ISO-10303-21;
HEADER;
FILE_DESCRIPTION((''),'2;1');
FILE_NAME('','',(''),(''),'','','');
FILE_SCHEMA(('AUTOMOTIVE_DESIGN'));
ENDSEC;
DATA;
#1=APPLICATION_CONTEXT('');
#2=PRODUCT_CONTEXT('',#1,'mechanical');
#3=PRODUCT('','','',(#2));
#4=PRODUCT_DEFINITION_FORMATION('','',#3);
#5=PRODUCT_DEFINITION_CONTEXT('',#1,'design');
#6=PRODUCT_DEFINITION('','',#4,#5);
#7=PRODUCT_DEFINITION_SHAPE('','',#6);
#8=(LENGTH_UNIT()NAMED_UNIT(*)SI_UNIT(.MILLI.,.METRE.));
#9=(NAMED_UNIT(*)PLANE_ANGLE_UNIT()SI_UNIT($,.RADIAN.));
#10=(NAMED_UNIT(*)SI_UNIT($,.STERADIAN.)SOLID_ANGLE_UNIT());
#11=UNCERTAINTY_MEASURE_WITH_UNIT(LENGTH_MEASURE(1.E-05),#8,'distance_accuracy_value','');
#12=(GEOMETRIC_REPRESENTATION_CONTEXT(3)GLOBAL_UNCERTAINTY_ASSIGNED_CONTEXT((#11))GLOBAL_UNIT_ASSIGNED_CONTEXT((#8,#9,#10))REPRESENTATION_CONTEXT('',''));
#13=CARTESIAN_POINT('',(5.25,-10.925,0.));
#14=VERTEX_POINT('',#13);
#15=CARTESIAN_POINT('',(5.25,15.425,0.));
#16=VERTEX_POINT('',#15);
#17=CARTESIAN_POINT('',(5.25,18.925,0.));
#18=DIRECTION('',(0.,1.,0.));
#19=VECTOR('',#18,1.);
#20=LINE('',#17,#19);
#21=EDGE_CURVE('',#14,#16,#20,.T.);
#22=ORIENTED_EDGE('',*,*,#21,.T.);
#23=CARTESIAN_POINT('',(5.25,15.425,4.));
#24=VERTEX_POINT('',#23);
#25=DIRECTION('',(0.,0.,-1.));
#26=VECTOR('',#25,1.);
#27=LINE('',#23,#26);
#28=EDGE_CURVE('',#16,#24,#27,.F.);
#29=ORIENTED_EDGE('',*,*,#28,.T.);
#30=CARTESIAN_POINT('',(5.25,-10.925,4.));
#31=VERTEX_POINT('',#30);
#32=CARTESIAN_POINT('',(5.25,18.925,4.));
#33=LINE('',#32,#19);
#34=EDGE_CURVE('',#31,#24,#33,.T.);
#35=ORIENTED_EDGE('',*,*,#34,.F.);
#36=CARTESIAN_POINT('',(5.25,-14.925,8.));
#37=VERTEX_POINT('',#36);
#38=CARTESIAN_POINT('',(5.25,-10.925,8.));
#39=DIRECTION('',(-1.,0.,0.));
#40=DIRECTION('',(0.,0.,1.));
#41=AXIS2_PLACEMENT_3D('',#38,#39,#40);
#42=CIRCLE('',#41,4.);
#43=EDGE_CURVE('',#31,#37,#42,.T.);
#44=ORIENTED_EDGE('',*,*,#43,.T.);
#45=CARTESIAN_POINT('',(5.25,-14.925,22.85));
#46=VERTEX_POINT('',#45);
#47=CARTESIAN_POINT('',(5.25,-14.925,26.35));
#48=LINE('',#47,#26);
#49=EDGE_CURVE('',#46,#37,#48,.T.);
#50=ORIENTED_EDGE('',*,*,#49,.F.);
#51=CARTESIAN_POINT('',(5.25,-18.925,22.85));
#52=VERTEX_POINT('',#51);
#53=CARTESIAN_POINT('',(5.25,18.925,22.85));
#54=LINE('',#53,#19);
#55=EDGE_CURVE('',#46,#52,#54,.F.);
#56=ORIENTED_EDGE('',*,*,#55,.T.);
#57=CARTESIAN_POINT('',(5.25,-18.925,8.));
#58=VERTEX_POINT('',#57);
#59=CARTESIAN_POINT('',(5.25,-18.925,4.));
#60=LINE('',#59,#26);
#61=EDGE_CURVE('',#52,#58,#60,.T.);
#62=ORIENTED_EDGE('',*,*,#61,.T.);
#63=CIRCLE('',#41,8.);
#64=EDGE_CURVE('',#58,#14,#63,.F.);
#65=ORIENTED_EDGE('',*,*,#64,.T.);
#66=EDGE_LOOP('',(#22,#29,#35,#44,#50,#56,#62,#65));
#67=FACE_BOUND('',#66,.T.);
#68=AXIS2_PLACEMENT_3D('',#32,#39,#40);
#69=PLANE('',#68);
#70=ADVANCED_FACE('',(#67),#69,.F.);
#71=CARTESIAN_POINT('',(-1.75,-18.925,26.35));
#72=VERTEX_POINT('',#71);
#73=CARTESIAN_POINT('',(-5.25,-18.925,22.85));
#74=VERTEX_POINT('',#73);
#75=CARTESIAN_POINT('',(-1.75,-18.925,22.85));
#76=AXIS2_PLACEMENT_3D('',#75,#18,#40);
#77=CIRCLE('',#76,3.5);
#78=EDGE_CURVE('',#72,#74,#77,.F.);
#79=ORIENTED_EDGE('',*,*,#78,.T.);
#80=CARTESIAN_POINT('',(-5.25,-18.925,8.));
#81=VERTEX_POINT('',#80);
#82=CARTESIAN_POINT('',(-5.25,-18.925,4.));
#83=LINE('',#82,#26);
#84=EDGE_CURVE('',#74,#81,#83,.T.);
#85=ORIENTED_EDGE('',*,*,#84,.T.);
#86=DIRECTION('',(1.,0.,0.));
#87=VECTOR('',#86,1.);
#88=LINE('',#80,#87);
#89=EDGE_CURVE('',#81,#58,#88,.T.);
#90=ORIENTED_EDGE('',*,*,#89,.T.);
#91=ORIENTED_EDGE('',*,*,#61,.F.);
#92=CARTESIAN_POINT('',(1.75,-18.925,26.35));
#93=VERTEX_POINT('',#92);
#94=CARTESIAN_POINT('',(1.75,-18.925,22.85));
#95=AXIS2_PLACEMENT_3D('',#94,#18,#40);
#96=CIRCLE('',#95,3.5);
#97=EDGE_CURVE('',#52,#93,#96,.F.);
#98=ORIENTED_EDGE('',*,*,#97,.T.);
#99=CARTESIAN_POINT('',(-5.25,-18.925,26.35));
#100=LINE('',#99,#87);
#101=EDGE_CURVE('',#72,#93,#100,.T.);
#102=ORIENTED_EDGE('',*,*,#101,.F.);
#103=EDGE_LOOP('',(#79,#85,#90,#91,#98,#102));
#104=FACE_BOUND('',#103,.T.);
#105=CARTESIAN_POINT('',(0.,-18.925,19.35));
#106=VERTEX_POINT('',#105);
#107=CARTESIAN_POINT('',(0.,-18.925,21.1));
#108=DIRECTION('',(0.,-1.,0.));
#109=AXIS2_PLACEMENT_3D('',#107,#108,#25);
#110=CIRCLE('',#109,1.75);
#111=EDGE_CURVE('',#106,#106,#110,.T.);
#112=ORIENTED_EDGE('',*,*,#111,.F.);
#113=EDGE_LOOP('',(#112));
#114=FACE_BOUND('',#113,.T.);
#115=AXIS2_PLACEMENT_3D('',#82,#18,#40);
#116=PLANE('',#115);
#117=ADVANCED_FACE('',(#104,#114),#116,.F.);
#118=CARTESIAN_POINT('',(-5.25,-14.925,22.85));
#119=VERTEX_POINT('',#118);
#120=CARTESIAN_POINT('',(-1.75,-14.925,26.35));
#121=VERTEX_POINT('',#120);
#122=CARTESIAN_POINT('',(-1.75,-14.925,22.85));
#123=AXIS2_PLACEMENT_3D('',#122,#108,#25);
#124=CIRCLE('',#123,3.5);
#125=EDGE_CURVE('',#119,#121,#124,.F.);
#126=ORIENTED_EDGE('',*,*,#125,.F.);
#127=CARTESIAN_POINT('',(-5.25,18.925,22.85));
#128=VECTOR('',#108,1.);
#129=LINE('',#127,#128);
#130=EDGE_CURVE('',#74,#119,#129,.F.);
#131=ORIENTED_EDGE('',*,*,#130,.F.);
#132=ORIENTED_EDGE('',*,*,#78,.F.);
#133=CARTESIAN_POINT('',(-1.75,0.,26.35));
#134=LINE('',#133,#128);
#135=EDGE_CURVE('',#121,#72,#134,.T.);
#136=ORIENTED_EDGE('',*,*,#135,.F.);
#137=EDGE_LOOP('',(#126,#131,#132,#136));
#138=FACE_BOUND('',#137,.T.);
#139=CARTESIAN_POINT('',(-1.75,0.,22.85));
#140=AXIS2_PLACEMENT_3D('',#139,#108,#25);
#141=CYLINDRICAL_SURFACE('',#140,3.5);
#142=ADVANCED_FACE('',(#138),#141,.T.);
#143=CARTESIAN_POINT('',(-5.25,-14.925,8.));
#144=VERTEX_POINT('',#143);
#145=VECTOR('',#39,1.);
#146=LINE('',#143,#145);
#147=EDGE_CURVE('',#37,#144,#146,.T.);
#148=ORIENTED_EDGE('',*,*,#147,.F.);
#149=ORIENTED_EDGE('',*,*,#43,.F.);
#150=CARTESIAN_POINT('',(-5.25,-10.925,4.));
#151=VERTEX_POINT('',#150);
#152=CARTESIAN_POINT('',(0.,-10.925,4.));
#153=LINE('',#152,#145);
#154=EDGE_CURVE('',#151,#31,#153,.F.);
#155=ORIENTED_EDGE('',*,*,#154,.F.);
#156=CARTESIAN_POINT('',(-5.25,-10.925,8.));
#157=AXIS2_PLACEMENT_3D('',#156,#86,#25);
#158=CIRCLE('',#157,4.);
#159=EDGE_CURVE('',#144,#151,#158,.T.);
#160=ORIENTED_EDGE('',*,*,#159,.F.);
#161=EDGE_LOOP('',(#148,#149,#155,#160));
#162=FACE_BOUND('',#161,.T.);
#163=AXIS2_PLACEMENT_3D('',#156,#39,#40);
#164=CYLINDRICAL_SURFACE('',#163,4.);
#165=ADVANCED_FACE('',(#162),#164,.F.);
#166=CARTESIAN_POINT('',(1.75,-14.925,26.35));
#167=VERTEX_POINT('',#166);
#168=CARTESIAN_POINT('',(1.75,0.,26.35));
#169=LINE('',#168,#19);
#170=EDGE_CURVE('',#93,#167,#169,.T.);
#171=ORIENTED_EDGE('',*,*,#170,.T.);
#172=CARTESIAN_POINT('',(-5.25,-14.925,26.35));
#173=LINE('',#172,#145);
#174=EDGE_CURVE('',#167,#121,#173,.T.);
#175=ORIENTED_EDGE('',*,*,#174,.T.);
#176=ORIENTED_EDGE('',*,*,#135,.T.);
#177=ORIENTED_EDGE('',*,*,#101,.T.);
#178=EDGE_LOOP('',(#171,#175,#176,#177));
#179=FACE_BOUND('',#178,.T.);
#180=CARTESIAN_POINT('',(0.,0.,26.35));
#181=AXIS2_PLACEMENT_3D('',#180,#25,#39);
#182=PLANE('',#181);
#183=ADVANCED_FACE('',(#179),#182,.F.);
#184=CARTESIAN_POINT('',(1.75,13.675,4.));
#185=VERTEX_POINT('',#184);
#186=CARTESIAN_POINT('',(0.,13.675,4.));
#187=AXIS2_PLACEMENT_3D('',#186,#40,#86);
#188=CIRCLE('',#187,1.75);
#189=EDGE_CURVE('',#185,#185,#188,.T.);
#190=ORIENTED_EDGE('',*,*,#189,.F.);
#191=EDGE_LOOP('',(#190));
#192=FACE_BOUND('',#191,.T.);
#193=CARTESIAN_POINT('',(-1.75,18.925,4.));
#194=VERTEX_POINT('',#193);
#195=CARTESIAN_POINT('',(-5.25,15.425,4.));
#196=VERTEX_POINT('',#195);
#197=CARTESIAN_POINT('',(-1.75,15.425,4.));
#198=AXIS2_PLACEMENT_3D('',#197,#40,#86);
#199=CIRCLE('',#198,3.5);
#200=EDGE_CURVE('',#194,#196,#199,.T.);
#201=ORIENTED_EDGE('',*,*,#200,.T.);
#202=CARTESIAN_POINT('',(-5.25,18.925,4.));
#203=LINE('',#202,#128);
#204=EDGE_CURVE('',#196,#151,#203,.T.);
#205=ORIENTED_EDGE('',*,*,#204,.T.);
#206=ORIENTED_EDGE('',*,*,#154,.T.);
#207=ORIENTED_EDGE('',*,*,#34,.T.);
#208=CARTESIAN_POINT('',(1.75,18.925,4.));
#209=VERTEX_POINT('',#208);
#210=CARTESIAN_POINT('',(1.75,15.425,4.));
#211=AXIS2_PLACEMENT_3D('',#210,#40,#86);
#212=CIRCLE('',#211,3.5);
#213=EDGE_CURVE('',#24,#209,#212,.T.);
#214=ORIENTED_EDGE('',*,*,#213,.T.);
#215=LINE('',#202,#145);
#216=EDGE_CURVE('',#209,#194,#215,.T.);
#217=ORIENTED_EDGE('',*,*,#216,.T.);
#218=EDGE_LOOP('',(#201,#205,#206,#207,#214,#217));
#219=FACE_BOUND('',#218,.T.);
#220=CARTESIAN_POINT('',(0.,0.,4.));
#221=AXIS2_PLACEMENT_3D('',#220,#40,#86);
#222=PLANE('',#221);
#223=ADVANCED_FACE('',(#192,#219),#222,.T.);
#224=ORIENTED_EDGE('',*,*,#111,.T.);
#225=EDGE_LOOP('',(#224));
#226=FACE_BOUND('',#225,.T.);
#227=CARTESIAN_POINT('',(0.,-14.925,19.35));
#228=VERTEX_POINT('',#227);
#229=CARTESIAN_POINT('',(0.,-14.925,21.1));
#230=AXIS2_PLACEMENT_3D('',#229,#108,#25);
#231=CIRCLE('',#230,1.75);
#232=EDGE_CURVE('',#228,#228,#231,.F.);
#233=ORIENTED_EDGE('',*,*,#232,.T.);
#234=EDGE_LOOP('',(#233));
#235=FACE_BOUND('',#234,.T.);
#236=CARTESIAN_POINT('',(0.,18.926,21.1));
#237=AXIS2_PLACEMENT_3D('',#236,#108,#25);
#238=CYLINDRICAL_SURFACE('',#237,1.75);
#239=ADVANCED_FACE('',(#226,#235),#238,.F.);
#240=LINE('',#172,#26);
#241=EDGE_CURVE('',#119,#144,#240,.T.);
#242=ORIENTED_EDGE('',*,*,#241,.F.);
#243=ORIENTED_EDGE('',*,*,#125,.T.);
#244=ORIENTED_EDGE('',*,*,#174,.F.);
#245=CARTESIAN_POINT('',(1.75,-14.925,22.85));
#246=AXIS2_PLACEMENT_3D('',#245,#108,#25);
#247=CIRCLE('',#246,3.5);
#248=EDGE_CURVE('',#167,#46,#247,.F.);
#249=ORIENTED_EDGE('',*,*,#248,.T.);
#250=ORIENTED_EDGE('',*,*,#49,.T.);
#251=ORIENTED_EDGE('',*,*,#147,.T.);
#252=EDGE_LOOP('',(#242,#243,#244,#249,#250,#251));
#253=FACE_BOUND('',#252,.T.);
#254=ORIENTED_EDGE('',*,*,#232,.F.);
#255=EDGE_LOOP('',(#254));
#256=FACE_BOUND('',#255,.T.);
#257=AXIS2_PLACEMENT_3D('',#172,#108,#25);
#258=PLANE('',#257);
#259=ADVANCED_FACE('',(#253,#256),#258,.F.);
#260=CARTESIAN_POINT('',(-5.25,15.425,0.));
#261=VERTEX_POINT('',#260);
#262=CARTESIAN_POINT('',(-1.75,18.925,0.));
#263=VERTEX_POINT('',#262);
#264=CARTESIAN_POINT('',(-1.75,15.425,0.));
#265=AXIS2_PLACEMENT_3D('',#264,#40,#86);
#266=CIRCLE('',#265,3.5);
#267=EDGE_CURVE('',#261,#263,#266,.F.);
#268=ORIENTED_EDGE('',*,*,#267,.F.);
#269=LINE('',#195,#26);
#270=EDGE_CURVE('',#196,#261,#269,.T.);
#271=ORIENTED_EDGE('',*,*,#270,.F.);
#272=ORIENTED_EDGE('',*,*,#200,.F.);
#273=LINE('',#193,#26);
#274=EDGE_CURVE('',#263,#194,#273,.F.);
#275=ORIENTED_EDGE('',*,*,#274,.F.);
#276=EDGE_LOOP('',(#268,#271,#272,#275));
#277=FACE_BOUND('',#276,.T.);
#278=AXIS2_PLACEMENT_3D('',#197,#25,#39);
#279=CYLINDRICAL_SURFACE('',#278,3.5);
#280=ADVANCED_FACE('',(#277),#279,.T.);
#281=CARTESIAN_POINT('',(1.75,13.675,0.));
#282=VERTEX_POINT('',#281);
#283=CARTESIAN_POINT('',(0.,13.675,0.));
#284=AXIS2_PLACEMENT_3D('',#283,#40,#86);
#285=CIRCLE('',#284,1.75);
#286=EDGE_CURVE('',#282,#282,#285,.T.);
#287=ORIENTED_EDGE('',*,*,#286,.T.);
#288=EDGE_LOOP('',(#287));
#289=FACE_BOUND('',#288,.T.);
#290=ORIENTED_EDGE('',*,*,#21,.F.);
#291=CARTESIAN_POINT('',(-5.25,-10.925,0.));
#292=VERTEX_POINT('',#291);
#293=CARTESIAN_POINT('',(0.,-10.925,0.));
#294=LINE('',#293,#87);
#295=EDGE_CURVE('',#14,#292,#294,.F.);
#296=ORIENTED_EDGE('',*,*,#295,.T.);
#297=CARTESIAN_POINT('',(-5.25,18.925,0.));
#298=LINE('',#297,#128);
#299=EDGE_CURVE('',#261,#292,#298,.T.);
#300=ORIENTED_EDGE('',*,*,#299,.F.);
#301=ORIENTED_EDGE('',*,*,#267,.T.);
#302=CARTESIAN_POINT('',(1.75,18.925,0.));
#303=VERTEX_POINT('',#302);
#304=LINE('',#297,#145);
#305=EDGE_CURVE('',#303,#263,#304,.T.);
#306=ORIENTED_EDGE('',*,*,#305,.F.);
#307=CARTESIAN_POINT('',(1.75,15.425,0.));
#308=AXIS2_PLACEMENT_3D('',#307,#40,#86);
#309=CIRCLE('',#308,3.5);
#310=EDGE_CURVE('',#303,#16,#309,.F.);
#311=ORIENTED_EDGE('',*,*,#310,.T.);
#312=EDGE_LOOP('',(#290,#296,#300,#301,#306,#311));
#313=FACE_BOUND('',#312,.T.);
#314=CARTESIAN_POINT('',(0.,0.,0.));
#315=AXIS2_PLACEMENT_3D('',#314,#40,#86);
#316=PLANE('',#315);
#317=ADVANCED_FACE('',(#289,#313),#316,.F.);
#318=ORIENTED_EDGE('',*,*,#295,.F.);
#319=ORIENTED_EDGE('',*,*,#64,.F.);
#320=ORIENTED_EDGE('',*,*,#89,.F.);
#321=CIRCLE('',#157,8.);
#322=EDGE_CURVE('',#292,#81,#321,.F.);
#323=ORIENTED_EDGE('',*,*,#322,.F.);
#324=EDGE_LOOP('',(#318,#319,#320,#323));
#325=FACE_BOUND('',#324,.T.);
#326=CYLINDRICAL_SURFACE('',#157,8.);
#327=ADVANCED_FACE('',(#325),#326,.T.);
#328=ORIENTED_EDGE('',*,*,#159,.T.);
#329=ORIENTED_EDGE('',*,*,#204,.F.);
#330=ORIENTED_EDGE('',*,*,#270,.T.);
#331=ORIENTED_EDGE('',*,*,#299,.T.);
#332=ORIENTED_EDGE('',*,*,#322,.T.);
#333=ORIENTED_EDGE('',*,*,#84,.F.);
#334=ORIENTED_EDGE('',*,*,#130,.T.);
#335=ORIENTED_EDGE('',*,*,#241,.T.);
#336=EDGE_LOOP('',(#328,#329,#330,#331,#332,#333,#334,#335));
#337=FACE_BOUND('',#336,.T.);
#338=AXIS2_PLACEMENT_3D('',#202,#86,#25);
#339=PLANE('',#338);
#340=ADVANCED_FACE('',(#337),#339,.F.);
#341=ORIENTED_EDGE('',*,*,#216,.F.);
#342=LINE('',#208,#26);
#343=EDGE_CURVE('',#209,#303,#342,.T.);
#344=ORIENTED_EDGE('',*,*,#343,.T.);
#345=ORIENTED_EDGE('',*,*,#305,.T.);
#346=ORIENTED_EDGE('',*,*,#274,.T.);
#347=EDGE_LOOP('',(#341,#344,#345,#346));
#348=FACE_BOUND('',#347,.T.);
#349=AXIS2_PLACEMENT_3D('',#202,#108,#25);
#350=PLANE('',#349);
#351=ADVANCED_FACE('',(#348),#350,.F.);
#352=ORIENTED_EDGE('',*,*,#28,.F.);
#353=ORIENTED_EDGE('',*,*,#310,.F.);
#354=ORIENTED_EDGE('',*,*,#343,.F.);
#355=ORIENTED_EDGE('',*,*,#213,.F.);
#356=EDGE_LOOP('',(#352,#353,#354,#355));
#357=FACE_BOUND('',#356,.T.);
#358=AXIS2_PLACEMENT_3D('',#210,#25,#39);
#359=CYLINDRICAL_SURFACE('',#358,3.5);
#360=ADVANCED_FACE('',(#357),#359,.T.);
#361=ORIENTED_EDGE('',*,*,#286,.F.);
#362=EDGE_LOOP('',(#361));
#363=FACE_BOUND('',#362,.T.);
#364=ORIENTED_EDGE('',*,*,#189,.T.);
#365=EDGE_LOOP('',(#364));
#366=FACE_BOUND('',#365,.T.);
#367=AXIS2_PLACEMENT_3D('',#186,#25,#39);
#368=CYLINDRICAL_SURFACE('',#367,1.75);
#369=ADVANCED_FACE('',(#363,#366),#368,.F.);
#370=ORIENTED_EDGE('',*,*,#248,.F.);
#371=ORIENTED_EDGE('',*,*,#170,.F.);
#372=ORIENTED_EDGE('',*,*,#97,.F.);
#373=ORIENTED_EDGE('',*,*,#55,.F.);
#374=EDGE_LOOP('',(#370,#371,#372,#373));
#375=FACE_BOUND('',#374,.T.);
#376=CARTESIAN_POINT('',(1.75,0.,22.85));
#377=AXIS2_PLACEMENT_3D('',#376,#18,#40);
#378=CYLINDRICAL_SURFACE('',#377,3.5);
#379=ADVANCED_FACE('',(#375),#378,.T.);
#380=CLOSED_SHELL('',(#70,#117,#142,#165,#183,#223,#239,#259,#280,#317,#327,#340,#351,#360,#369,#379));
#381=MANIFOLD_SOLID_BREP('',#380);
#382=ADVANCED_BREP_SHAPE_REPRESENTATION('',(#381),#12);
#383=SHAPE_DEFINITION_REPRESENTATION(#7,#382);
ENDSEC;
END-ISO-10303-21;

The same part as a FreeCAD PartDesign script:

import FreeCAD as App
import Part
import Sketcher

V = App.Vector


def edges_at(feature, points):
    """Names of the edges that pass closest to the given points."""
    edges = feature.Shape.Edges
    near = lambda p: min(range(len(edges)), key=lambda i: edges[i].distToShape(Part.Vertex(*p))[0])
    return sorted({f"Edge{near(p) + 1}" for p in points})

doc = App.newDocument("Part")
body = doc.addObject("PartDesign::Body", "Body")

# Sketch on XY plane
sketch1 = body.newObject("Sketcher::SketchObject", "Sketch")
sketch1.AttachmentSupport = (doc.getObject("XY_Plane"), [""])
sketch1.MapMode = "FlatFace"
sketch1.addGeometry([
    Part.LineSegment(V(-5.2, 18.9, 0), V(-5.2, -18.9, 0)),  # 0
    Part.LineSegment(V(-5.2, -18.9, 0), V(5.2, -18.9, 0)),  # 1
    Part.LineSegment(V(5.2, -18.9, 0), V(5.2, 18.9, 0)),  # 2
    Part.LineSegment(V(5.2, 18.9, 0), V(-5.2, 18.9, 0)),  # 3
    Part.Circle(V(0, 13.7, 0), V(0, 0, 1), 1.8),  # 4
], False)
sketch1.addConstraint([
    Sketcher.Constraint("Coincident", 0, 2, 1, 1),
    Sketcher.Constraint("Coincident", 1, 2, 2, 1),
    Sketcher.Constraint("Coincident", 2, 2, 3, 1),
    Sketcher.Constraint("Coincident", 3, 2, 0, 1),
    Sketcher.Constraint("Vertical", 0),
    Sketcher.Constraint("Horizontal", 1),
    Sketcher.Constraint("Vertical", 2),
    Sketcher.Constraint("Horizontal", 3),
    Sketcher.Constraint("Symmetric", 0, 2, 2, 2, -1, 1),
    Sketcher.Constraint("PointOnObject", 4, 3, -2),
    Sketcher.Constraint("Diameter", 4, 3.5),
    Sketcher.Constraint("DistanceX", 1, 1, 1, 2, 10.5),
    Sketcher.Constraint("DistanceY", 0, 2, 0, 1, 37.85),
    Sketcher.Constraint("DistanceY", 0, 2, 4, 3, 32.6),
])
pad1 = body.newObject("PartDesign::Pad", "Pad")
pad1.Profile = sketch1
pad1.Length = 4

# Sketch on XY plane
sketch2 = body.newObject("Sketcher::SketchObject", "Sketch001")
sketch2.AttachmentSupport = (doc.getObject("XY_Plane"), [""])
sketch2.MapMode = "FlatFace"
sketch2.AttachmentOffset = App.Placement(V(0, 0, 4), App.Rotation())
sketch2.addGeometry([
    Part.LineSegment(V(-5.2, -14.9, 0), V(-5.2, -18.9, 0)),
    Part.LineSegment(V(-5.2, -18.9, 0), V(5.2, -18.9, 0)),
    Part.LineSegment(V(5.2, -18.9, 0), V(5.2, -14.9, 0)),
    Part.LineSegment(V(5.2, -14.9, 0), V(-5.2, -14.9, 0)),
], False)
sketch2.addConstraint([
    Sketcher.Constraint("Coincident", 0, 2, 1, 1),
    Sketcher.Constraint("Coincident", 1, 2, 2, 1),
    Sketcher.Constraint("Coincident", 2, 2, 3, 1),
    Sketcher.Constraint("Coincident", 3, 2, 0, 1),
    Sketcher.Constraint("Vertical", 0),
    Sketcher.Constraint("Horizontal", 1),
    Sketcher.Constraint("Vertical", 2),
    Sketcher.Constraint("Horizontal", 3),
    Sketcher.Constraint("DistanceY", 0, 2, 0, 1, 4.0),
    Sketcher.Constraint("DistanceX", 1, 1, 1, 2, 10.5),
    Sketcher.Constraint("DistanceX", 0, 2, -1, 1, 5.25),
    Sketcher.Constraint("DistanceY", 0, 2, -1, 1, 18.925),
])
pad2 = body.newObject("PartDesign::Pad", "Pad001")
pad2.Profile = sketch2
pad2.Length = 22.35

# Sketch on XZ plane
sketch3 = body.newObject("Sketcher::SketchObject", "Sketch002")
sketch3.AttachmentSupport = (doc.getObject("XZ_Plane"), [""])
sketch3.MapMode = "FlatFace"
sketch3.AttachmentOffset = App.Placement(V(0, 0, 18.925), App.Rotation())
sketch3.addGeometry(Part.Circle(V(0, 21.1, 0), V(0, 0, 1), 1.8), False)
sketch3.addConstraint([
    Sketcher.Constraint("PointOnObject", 0, 3, -2),
    Sketcher.Constraint("Diameter", 0, 3.5),
    Sketcher.Constraint("DistanceY", -1, 1, 0, 3, 21.1),
])
pocket1 = body.newObject("PartDesign::Pocket", "Pocket")
pocket1.Profile = sketch3
pocket1.Type = "UpToFirst"
doc.recompute()

fillet = body.newObject("PartDesign::Fillet", "Fillet")
fillet.Base = (pocket1, edges_at(pocket1, [
    (-5.25, -16.925, 26.35),
    (5.25, -16.925, 26.35),
    (-5.25, 18.925, 2),
    (5.25, 18.925, 2),
]))
fillet.Radius = 3.5
doc.recompute()

fillet2 = body.newObject("PartDesign::Fillet", "Fillet001")
fillet2.Base = (fillet, edges_at(fillet, [(0, -14.925, 4)]))
fillet2.Radius = 4
doc.recompute()

fillet3 = body.newObject("PartDesign::Fillet", "Fillet002")
fillet3.Base = (fillet2, edges_at(fillet2, [(0, -18.925, 0)]))
fillet3.Radius = 8

doc.recompute()
